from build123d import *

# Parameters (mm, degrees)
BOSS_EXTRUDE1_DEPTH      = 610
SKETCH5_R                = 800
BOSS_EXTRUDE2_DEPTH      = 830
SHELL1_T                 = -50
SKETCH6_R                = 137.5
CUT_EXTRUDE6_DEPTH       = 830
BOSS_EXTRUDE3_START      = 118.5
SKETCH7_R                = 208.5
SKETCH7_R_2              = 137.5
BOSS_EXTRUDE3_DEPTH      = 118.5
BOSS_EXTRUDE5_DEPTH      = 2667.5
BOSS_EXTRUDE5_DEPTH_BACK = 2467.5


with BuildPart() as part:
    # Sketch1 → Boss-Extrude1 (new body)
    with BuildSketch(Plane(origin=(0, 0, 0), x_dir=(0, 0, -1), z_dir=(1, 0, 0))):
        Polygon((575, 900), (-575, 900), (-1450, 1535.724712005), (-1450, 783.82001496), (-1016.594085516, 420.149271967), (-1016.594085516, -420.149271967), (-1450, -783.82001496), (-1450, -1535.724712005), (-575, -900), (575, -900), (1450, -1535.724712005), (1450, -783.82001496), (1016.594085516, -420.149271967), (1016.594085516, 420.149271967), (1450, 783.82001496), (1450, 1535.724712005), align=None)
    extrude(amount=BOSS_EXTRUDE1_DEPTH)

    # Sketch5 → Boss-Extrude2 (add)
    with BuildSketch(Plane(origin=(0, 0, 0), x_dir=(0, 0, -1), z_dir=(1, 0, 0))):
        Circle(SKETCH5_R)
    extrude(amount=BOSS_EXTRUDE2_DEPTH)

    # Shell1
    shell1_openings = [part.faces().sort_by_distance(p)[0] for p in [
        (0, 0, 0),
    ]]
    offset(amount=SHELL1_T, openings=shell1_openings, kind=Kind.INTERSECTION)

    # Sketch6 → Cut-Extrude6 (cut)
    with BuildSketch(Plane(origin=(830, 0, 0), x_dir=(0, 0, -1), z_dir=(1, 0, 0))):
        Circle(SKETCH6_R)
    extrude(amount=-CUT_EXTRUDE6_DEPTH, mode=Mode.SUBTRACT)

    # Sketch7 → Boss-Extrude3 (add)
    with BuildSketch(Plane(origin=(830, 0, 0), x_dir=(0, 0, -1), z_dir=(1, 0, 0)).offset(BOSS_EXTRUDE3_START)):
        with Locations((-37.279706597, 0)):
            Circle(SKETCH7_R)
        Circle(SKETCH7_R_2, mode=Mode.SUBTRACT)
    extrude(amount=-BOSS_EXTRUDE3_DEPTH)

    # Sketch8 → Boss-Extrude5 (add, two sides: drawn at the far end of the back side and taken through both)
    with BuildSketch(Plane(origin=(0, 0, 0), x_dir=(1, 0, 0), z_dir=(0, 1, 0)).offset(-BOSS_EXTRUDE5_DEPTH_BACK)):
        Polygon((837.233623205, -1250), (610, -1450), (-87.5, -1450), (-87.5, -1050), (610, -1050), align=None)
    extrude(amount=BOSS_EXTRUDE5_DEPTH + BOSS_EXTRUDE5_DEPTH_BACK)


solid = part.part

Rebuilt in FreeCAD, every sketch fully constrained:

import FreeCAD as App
import Part
import Sketcher

V = App.Vector
Q = App.Units.Quantity


def faces_at(feature, points):
    """Names of the faces that lie closest to the given points."""
    faces = feature.Shape.Faces
    near = lambda p: min(range(len(faces)), key=lambda i: faces[i].distToShape(Part.Vertex(*p))[0])
    return sorted({f"Face{near(p) + 1}" for p in points})

doc = App.newDocument("Part")
params = doc.addObject("Spreadsheet::Sheet", "Params")
for row, (alias, value) in enumerate([
    ("sketch1_height", "1150 mm"),
    ("pad1_length", "610 mm"),
    ("sketch2_diameter", "1600 mm"),
    ("pad2_length", "830 mm"),
    ("thickness_wall", "50 mm"),
    ("sketch3_diameter", "275 mm"),
    ("pocket1_length", "830 mm"),
    ("sketch4_diameter", "417 mm"),
    ("sketch4_diameter2", "275 mm"),
    ("pad3_length", "118.5 mm"),
    ("sketch5_height", "400 mm"),
    ("sketch5_width", "697.5 mm"),
    ("pad4_length", "2667.5 mm"),
    ("pad4_length2", "2467.5 mm"),
], start=1):
    params.set(f"A{row}", alias)
    params.set(f"B{row}", "=" + value)
    params.setAlias(f"B{row}", alias)

body = doc.addObject("PartDesign::Body", "Body")

sketch1 = body.newObject("Sketcher::SketchObject", "Sketch")
sketch1.AttachmentSupport = (doc.getObject("YZ_Plane"), [""])
sketch1.MapMode = "FlatFace"
sketch1.addGeometry(Part.LineSegment(V(900, -575, 0), V(900, 575, 0)), False)
sketch1.addGeometry(Part.LineSegment(V(900, 575, 0), V(1536, 1450, 0)), False)
sketch1.addGeometry(Part.LineSegment(V(1536, 1450, 0), V(784, 1450, 0)), False)
sketch1.addGeometry(Part.LineSegment(V(784, 1450, 0), V(420, 1017, 0)), False)
sketch1.addGeometry(Part.LineSegment(V(420, 1017, 0), V(-420, 1017, 0)), False)
sketch1.addGeometry(Part.LineSegment(V(-420, 1017, 0), V(-784, 1450, 0)), False)
sketch1.addGeometry(Part.LineSegment(V(-784, 1450, 0), V(-1536, 1450, 0)), False)
sketch1.addGeometry(Part.LineSegment(V(-1536, 1450, 0), V(-900, 575, 0)), False)
sketch1.addGeometry(Part.LineSegment(V(-900, 575, 0), V(-900, -575, 0)), False)
sketch1.addGeometry(Part.LineSegment(V(-900, -575, 0), V(-1536, -1450, 0)), False)
sketch1.addGeometry(Part.LineSegment(V(-1536, -1450, 0), V(-784, -1450, 0)), False)
sketch1.addGeometry(Part.LineSegment(V(-784, -1450, 0), V(-420, -1017, 0)), False)
sketch1.addGeometry(Part.LineSegment(V(-420, -1017, 0), V(420, -1017, 0)), False)
sketch1.addGeometry(Part.LineSegment(V(420, -1017, 0), V(784, -1450, 0)), False)
sketch1.addGeometry(Part.LineSegment(V(784, -1450, 0), V(1536, -1450, 0)), False)
sketch1.addGeometry(Part.LineSegment(V(1536, -1450, 0), V(900, -575, 0)), False)
sketch1.addConstraint(Sketcher.Constraint("Coincident", 0, 2, 1, 1))
sketch1.addConstraint(Sketcher.Constraint("Coincident", 1, 2, 2, 1))
sketch1.addConstraint(Sketcher.Constraint("Coincident", 2, 2, 3, 1))
sketch1.addConstraint(Sketcher.Constraint("Coincident", 3, 2, 4, 1))
sketch1.addConstraint(Sketcher.Constraint("Coincident", 4, 2, 5, 1))
sketch1.addConstraint(Sketcher.Constraint("Coincident", 5, 2, 6, 1))
sketch1.addConstraint(Sketcher.Constraint("Coincident", 6, 2, 7, 1))
sketch1.addConstraint(Sketcher.Constraint("Coincident", 7, 2, 8, 1))
sketch1.addConstraint(Sketcher.Constraint("Coincident", 8, 2, 9, 1))
sketch1.addConstraint(Sketcher.Constraint("Coincident", 9, 2, 10, 1))
sketch1.addConstraint(Sketcher.Constraint("Coincident", 10, 2, 11, 1))
sketch1.addConstraint(Sketcher.Constraint("Coincident", 11, 2, 12, 1))
sketch1.addConstraint(Sketcher.Constraint("Coincident", 12, 2, 13, 1))
sketch1.addConstraint(Sketcher.Constraint("Coincident", 13, 2, 14, 1))
sketch1.addConstraint(Sketcher.Constraint("Coincident", 14, 2, 15, 1))
sketch1.addConstraint(Sketcher.Constraint("Coincident", 15, 2, 0, 1))
sketch1.addConstraint(Sketcher.Constraint("Vertical", 0))
sketch1.addConstraint(Sketcher.Constraint("Horizontal", 2))
sketch1.addConstraint(Sketcher.Constraint("Horizontal", 4))
sketch1.addConstraint(Sketcher.Constraint("Horizontal", 6))
sketch1.addConstraint(Sketcher.Constraint("Vertical", 8))
sketch1.addConstraint(Sketcher.Constraint("Horizontal", 10))
sketch1.addConstraint(Sketcher.Constraint("Horizontal", 12))
sketch1.addConstraint(Sketcher.Constraint("Horizontal", 14))
sketch1.addConstraint(Sketcher.Constraint("Symmetric", 0, 2, 8, 2, -1, 1))
sketch1.addConstraint(Sketcher.Constraint("Symmetric", 1, 2, 9, 2, -1, 1))
sketch1.addConstraint(Sketcher.Constraint("Symmetric", 3, 2, 11, 2, -1, 1))
sketch1.addConstraint(Sketcher.Constraint("Symmetric", 5, 2, 13, 2, -1, 1))
sketch1.addConstraint(Sketcher.Constraint("Symmetric", 2, 2, 5, 2, -2))
sketch1.addConstraint(Sketcher.Constraint("Parallel", 3, 11))
sketch1.addConstraint(Sketcher.Constraint("Parallel", 5, 13))
sketch1.addConstraint(Sketcher.Constraint("Parallel", 7, 15))
sketch1.addConstraint(Sketcher.Constraint("Horizontal", 0, 2, 7, 2))
sketch1.addConstraint(Sketcher.Constraint("Horizontal", 8, 2, 15, 2))
sketch1.addConstraint(Sketcher.Constraint("Vertical", 6, 2, 9, 2))
sketch1.addConstraint(Sketcher.Constraint("Vertical", 4, 2, 11, 2))
sketch1.addConstraint(Sketcher.Constraint("DistanceY", 0, 1, 0, 2, Q("1150 mm")))
sketch1.addConstraint(Sketcher.Constraint("Angle", 1, Q("54 deg")))
sketch1.addConstraint(Sketcher.Constraint("Angle", 3, Q("-130 deg")))
sketch1.addConstraint(Sketcher.Constraint("DistanceX", -1, 1, 0, 2, Q("900 mm")))
sketch1.addConstraint(Sketcher.Constraint("DistanceY", -1, 1, 1, 2, Q("1450 mm")))
sketch1.addConstraint(Sketcher.Constraint("Distance", 3, Q("565.77124 mm")))
sketch1.addConstraint(Sketcher.Constraint("DistanceX", 2, 2, 2, 1, Q("751.904697 mm")))
sketch1.setExpression("Constraints[36]", "Params.sketch1_height")
pad1 = body.newObject("PartDesign::Pad", "Pad")
pad1.Profile = sketch1
pad1.setExpression("Length", "Params.pad1_length")

sketch2 = body.newObject("Sketcher::SketchObject", "Sketch001")
sketch2.AttachmentSupport = (doc.getObject("YZ_Plane"), [""])
sketch2.MapMode = "FlatFace"
sketch2.addGeometry(Part.Circle(V(0, 0, 0), V(0, 0, 1), 800), False)
sketch2.addConstraint(Sketcher.Constraint("Coincident", 0, 3, -1, 1))
sketch2.addConstraint(Sketcher.Constraint("Diameter", 0, Q("1600 mm")))
sketch2.setExpression("Constraints[1]", "Params.sketch2_diameter")
pad2 = body.newObject("PartDesign::Pad", "Pad001")
pad2.Profile = sketch2
pad2.setExpression("Length", "Params.pad2_length")
doc.recompute()

thickness = body.newObject("PartDesign::Thickness", "Thickness")
thickness.Base = (pad2, faces_at(pad2, [(0, 0, 0)]))
thickness.setExpression("Value", "Params.thickness_wall")
thickness.Reversed = True
thickness.Join = "Intersection"

sketch3 = body.newObject("Sketcher::SketchObject", "Sketch002")
sketch3.AttachmentSupport = (doc.getObject("YZ_Plane"), [""])
sketch3.MapMode = "FlatFace"
sketch3.AttachmentOffset = App.Placement(V(0, 0, 830), App.Rotation())
sketch3.addGeometry(Part.Circle(V(0, 0, 0), V(0, 0, 1), 138), False)
sketch3.addConstraint(Sketcher.Constraint("Coincident", 0, 3, -1, 1))
sketch3.addConstraint(Sketcher.Constraint("Diameter", 0, Q("275 mm")))
sketch3.setExpression("Constraints[1]", "Params.sketch3_diameter")
pocket1 = body.newObject("PartDesign::Pocket", "Pocket")
pocket1.Profile = sketch3
pocket1.setExpression("Length", "Params.pocket1_length")

sketch4 = body.newObject("Sketcher::SketchObject", "Sketch003")
sketch4.AttachmentSupport = (doc.getObject("YZ_Plane"), [""])
sketch4.MapMode = "FlatFace"
sketch4.AttachmentOffset = App.Placement(V(0, 0, 948.5), App.Rotation())
sketch4.addGeometry(Part.Circle(V(0, 37, 0), V(0, 0, 1), 208), False)
sketch4.addGeometry(Part.Circle(V(0, 0, 0), V(0, 0, 1), 138), False)
sketch4.addConstraint(Sketcher.Constraint("Coincident", 1, 3, -1, 1))
sketch4.addConstraint(Sketcher.Constraint("PointOnObject", 0, 3, -2))
sketch4.addConstraint(Sketcher.Constraint("Diameter", 0, Q("417 mm")))
sketch4.addConstraint(Sketcher.Constraint("Diameter", 1, Q("275 mm")))
sketch4.addConstraint(Sketcher.Constraint("DistanceY", -1, 1, 0, 3, Q("37.279707 mm")))
sketch4.setExpression("Constraints[2]", "Params.sketch4_diameter")
sketch4.setExpression("Constraints[3]", "Params.sketch4_diameter2")
pad3 = body.newObject("PartDesign::Pad", "Pad002")
pad3.Profile = sketch4
pad3.setExpression("Length", "Params.pad3_length")
pad3.Reversed = True

sketch5 = body.newObject("Sketcher::SketchObject", "Sketch004")
sketch5.AttachmentSupport = (doc.getObject("XZ_Plane"), [""])
sketch5.MapMode = "FlatFace"
sketch5.addGeometry(Part.LineSegment(V(610, 1450, 0), V(837, 1250, 0)), False)
sketch5.addGeometry(Part.LineSegment(V(837, 1250, 0), V(610, 1050, 0)), False)
sketch5.addGeometry(Part.LineSegment(V(610, 1050, 0), V(-88, 1050, 0)), False)
sketch5.addGeometry(Part.LineSegment(V(-88, 1050, 0), V(-88, 1450, 0)), False)
sketch5.addGeometry(Part.LineSegment(V(-88, 1450, 0), V(610, 1450, 0)), False)
sketch5.addConstraint(Sketcher.Constraint("Coincident", 0, 2, 1, 1))
sketch5.addConstraint(Sketcher.Constraint("Coincident", 1, 2, 2, 1))
sketch5.addConstraint(Sketcher.Constraint("Coincident", 2, 2, 3, 1))
sketch5.addConstraint(Sketcher.Constraint("Coincident", 3, 2, 4, 1))
sketch5.addConstraint(Sketcher.Constraint("Coincident", 4, 2, 0, 1))
sketch5.addConstraint(Sketcher.Constraint("Horizontal", 2))
sketch5.addConstraint(Sketcher.Constraint("Vertical", 3))
sketch5.addConstraint(Sketcher.Constraint("Horizontal", 4))
sketch5.addConstraint(Sketcher.Constraint("Vertical", 1, 2, 4, 2))
sketch5.addConstraint(Sketcher.Constraint("Equal", 0, 1))
sketch5.addConstraint(Sketcher.Constraint("DistanceY", 3, 1, 3, 2, Q("400 mm")))
sketch5.addConstraint(Sketcher.Constraint("DistanceX", 2, 2, 2, 1, Q("697.5 mm")))
sketch5.addConstraint(Sketcher.Constraint("DistanceY", -1, 1, 0, 2, Q("1250 mm")))
sketch5.addConstraint(Sketcher.Constraint("DistanceX", -1, 1, 1, 2, Q("610 mm")))
sketch5.addConstraint(Sketcher.Constraint("Distance", 0, Q("302.712933 mm")))
sketch5.setExpression("Constraints[10]", "Params.sketch5_height")
sketch5.setExpression("Constraints[11]", "Params.sketch5_width")
pad4 = body.newObject("PartDesign::Pad", "Pad003")
pad4.Profile = sketch5
pad4.Type = "TwoLengths"
pad4.setExpression("Length", "Params.pad4_length")
pad4.setExpression("Length2", "Params.pad4_length2")
pad4.Reversed = True

doc.recompute()
